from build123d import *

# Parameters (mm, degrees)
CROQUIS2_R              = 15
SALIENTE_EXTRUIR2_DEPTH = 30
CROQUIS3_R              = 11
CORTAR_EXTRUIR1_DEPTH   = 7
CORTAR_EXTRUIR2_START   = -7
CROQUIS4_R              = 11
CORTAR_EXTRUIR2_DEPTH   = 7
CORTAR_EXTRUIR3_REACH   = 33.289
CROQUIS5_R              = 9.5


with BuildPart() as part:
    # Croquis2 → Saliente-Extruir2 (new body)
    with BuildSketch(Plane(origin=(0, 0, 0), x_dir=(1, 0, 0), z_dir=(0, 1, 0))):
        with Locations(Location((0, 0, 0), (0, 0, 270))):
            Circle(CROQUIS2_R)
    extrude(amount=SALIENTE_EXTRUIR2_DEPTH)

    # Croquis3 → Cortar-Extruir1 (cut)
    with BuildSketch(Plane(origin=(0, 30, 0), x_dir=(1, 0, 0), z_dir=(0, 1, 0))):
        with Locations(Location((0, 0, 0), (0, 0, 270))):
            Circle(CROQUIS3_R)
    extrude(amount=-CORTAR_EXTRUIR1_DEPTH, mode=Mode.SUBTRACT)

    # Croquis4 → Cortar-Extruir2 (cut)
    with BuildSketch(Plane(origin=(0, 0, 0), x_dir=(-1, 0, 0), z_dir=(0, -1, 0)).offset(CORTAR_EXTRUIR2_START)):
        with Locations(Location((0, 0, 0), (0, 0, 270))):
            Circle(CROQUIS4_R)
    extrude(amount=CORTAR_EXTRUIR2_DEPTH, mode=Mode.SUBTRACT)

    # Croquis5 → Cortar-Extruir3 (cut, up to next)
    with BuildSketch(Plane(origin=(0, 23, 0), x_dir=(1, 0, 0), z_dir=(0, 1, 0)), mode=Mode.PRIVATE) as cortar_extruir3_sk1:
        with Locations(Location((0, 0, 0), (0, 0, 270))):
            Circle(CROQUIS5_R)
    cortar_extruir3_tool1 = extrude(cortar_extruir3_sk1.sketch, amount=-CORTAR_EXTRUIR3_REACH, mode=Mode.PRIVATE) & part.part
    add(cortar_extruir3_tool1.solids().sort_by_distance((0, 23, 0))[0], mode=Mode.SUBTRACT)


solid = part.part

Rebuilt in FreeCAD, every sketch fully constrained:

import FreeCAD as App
import Part
import Sketcher
from FreeCAD import Vector
Q = App.Units.Quantity

doc = App.newDocument("Part")
body = doc.addObject("PartDesign::Body", "Body")

sketch1 = body.newObject("Sketcher::SketchObject", "Sketch")
sketch1.AttachmentSupport = (doc.getObject("XZ_Plane"), [""])
sketch1.MapMode = "FlatFace"
sketch1.addGeometry(Part.Circle(Vector(0, 0, 0), Vector(0, 0, 1), 15), False)
sketch1.addConstraint(Sketcher.Constraint("Coincident", 0, 3, -1, 1))
sketch1.addConstraint(Sketcher.Constraint("Diameter", 0, Q("30 mm")))
pad1 = body.newObject("PartDesign::Pad", "Pad")
pad1.Profile = sketch1
pad1.Length = 30
pad1.Reversed = True

sketch2 = body.newObject("Sketcher::SketchObject", "Sketch001")
sketch2.AttachmentSupport = (doc.getObject("XZ_Plane"), [""])
sketch2.MapMode = "FlatFace"
sketch2.AttachmentOffset = App.Placement(Vector(0, 0, -30), App.Rotation())
sketch2.addGeometry(Part.Circle(Vector(0, 0, 0), Vector(0, 0, 1), 11), False)
sketch2.addConstraint(Sketcher.Constraint("Coincident", 0, 3, -1, 1))
sketch2.addConstraint(Sketcher.Constraint("Diameter", 0, Q("22 mm")))
pocket1 = body.newObject("PartDesign::Pocket", "Pocket")
pocket1.Profile = sketch2
pocket1.Length = 7
pocket1.Reversed = True

sketch3 = body.newObject("Sketcher::SketchObject", "Sketch002")
sketch3.AttachmentSupport = (doc.getObject("XZ_Plane"), [""])
sketch3.MapMode = "FlatFace"
sketch3.AttachmentOffset = App.Placement(Vector(0, 0, -7), App.Rotation())
sketch3.addGeometry(Part.Circle(Vector(0, 0, 0), Vector(0, 0, 1), 11), False)
sketch3.addConstraint(Sketcher.Constraint("Coincident", 0, 3, -1, 1))
sketch3.addConstraint(Sketcher.Constraint("Diameter", 0, Q("22 mm")))
pocket2 = body.newObject("PartDesign::Pocket", "Pocket001")
pocket2.Profile = sketch3
pocket2.Length = 7
pocket2.Reversed = True

sketch4 = body.newObject("Sketcher::SketchObject", "Sketch003")
sketch4.AttachmentSupport = (doc.getObject("XZ_Plane"), [""])
sketch4.MapMode = "FlatFace"
sketch4.AttachmentOffset = App.Placement(Vector(0, 0, -23), App.Rotation())
sketch4.addGeometry(Part.Circle(Vector(0, 0, 0), Vector(0, 0, 1), 10), False)
sketch4.addConstraint(Sketcher.Constraint("Coincident", 0, 3, -1, 1))
sketch4.addConstraint(Sketcher.Constraint("Diameter", 0, Q("19 mm")))
pocket3 = body.newObject("PartDesign::Pocket", "Pocket002")
pocket3.Profile = sketch4
pocket3.Type = "UpToFirst"
pocket3.Reversed = True

doc.recompute()
